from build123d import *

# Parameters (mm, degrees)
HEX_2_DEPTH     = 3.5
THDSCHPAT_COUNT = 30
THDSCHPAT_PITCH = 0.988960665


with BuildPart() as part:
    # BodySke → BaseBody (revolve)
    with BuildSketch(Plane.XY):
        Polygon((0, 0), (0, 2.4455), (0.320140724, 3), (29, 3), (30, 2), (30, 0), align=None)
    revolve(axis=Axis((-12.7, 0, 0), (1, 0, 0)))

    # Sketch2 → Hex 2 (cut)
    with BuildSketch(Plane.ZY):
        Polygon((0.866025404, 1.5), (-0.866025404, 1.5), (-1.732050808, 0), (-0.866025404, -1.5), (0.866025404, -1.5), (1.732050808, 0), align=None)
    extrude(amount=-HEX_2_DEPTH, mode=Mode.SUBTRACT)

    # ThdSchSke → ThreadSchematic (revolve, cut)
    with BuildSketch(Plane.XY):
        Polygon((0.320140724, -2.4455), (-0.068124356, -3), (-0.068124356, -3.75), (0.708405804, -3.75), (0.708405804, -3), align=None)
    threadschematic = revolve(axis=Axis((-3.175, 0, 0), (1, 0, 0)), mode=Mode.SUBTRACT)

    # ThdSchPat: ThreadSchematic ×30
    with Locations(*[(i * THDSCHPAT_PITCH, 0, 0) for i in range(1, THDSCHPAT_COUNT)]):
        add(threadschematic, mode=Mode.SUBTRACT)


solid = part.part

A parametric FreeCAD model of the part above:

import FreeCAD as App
import Part
import Sketcher
from FreeCAD import Vector
Q = App.Units.Quantity

doc = App.newDocument("Part")
params = doc.addObject("Spreadsheet::Sheet", "Params")
for row, (alias, value) in enumerate([
    ("sketch1_width", "30 mm"),
    ("sketch1_height", "2 mm"),
    ("revolution_angle", "360 deg"),
    ("pocket1_length", "3.5 mm"),
    ("sketch3_height", "0.75 mm"),
    ("groove_angle", "360 deg"),
    ("linearpattern_pitch", "0.988961 mm"),
], start=1):
    params.set(f"A{row}", alias)
    params.set(f"B{row}", "=" + value)
    params.setAlias(f"B{row}", alias)

body = doc.addObject("PartDesign::Body", "Body")

sketch1 = doc.addObject("Sketcher::SketchObject", "Sketch")
body.addObject(sketch1)
sketch1.AttachmentSupport = (doc.XY_Plane, [""])
sketch1.MapMode = "FlatFace"
sketch1.addGeometry(Part.LineSegment(Vector(0, 2.4, 0), Vector(0, 0, 0)), False)
sketch1.addGeometry(Part.LineSegment(Vector(0, 0, 0), Vector(30, 0, 0)), False)
sketch1.addGeometry(Part.LineSegment(Vector(30, 0, 0), Vector(30, 2, 0)), False)
sketch1.addGeometry(Part.LineSegment(Vector(30, 2, 0), Vector(29, 3, 0)), False)
sketch1.addGeometry(Part.LineSegment(Vector(29, 3, 0), Vector(0.3, 3, 0)), False)
sketch1.addGeometry(Part.LineSegment(Vector(0.3, 3, 0), Vector(0, 2.4, 0)), False)
sketch1.addConstraint(Sketcher.Constraint("Coincident", 0, 2, 1, 1))
sketch1.addConstraint(Sketcher.Constraint("Coincident", 1, 2, 2, 1))
sketch1.addConstraint(Sketcher.Constraint("Coincident", 2, 2, 3, 1))
sketch1.addConstraint(Sketcher.Constraint("Coincident", 3, 2, 4, 1))
sketch1.addConstraint(Sketcher.Constraint("Coincident", 4, 2, 5, 1))
sketch1.addConstraint(Sketcher.Constraint("Coincident", 5, 2, 0, 1))
sketch1.addConstraint(Sketcher.Constraint("Vertical", 0))
sketch1.addConstraint(Sketcher.Constraint("Horizontal", 1))
sketch1.addConstraint(Sketcher.Constraint("Vertical", 2))
sketch1.addConstraint(Sketcher.Constraint("Horizontal", 4))
sketch1.addConstraint(Sketcher.Constraint("Coincident", 0, 2, -1, 1))
sketch1.addConstraint(Sketcher.Constraint("DistanceX", 1, 1, 1, 2, 30.0))
sketch1.addConstraint(Sketcher.Constraint("DistanceY", 2, 1, 2, 2, 2.0))
sketch1.addConstraint(Sketcher.Constraint("Angle", 3, Q("135 deg")))
sketch1.addConstraint(Sketcher.Constraint("Angle", 5, Q("-120 deg")))
sketch1.addConstraint(Sketcher.Constraint("DistanceX", -1, 1, 3, 2, 29.0))
sketch1.addConstraint(Sketcher.Constraint("DistanceY", 0, 2, 0, 1, 2.4455))
sketch1.setExpression("Constraints[11]", "Params.sketch1_width")
sketch1.setExpression("Constraints[12]", "Params.sketch1_height")
revolution = doc.addObject("PartDesign::Revolution", "Revolution")
body.addObject(revolution)
revolution.Profile = sketch1
revolution.ReferenceAxis = (sketch1, ["H_Axis"])
revolution.setExpression("Angle", "Params.revolution_angle")

sketch2 = doc.addObject("Sketcher::SketchObject", "Sketch001")
body.addObject(sketch2)
sketch2.AttachmentSupport = (doc.YZ_Plane, [""])
sketch2.MapMode = "FlatFace"
sketch2.addGeometry(Part.LineSegment(Vector(1.5, 0.9, 0), Vector(1.5, -0.9, 0)), False)
sketch2.addGeometry(Part.LineSegment(Vector(1.5, -0.9, 0), Vector(0, -1.7, 0)), False)
sketch2.addGeometry(Part.LineSegment(Vector(0, -1.7, 0), Vector(-1.5, -0.9, 0)), False)
sketch2.addGeometry(Part.LineSegment(Vector(-1.5, -0.9, 0), Vector(-1.5, 0.9, 0)), False)
sketch2.addGeometry(Part.LineSegment(Vector(-1.5, 0.9, 0), Vector(0, 1.7, 0)), False)
sketch2.addGeometry(Part.LineSegment(Vector(0, 1.7, 0), Vector(1.5, 0.9, 0)), False)
sketch2.addConstraint(Sketcher.Constraint("Coincident", 0, 2, 1, 1))
sketch2.addConstraint(Sketcher.Constraint("Coincident", 1, 2, 2, 1))
sketch2.addConstraint(Sketcher.Constraint("Coincident", 2, 2, 3, 1))
sketch2.addConstraint(Sketcher.Constraint("Coincident", 3, 2, 4, 1))
sketch2.addConstraint(Sketcher.Constraint("Coincident", 4, 2, 5, 1))
sketch2.addConstraint(Sketcher.Constraint("Coincident", 5, 2, 0, 1))
sketch2.addConstraint(Sketcher.Constraint("Vertical", 0))
sketch2.addConstraint(Sketcher.Constraint("Vertical", 3))
sketch2.addConstraint(Sketcher.Constraint("Symmetric", 0, 2, 3, 2, -1, 1))
sketch2.addConstraint(Sketcher.Constraint("Symmetric", 1, 2, 4, 2, -1, 1))
sketch2.addConstraint(Sketcher.Constraint("PointOnObject", 1, 2, -2))
sketch2.addConstraint(Sketcher.Constraint("Parallel", 2, 5))
sketch2.addConstraint(Sketcher.Constraint("Horizontal", 0, 2, 2, 2))
sketch2.addConstraint(Sketcher.Constraint("Angle", 1, Q("-150 deg")))
sketch2.addConstraint(Sketcher.Constraint("DistanceX", 2, 2, 0, 2, 3.0))
sketch2.addConstraint(Sketcher.Constraint("DistanceY", 0, 2, 0, 1, 1.732051))
pocket1 = doc.addObject("PartDesign::Pocket", "Pocket")
body.addObject(pocket1)
pocket1.Profile = sketch2
pocket1.setExpression("Length", "Params.pocket1_length")
pocket1.Reversed = True

sketch3 = doc.addObject("Sketcher::SketchObject", "Sketch002")
body.addObject(sketch3)
sketch3.AttachmentSupport = (doc.XY_Plane, [""])
sketch3.MapMode = "FlatFace"
sketch3.addGeometry(Part.LineSegment(Vector(0.3, -2.4, 0), Vector(-0.1, -3, 0)), False)
sketch3.addGeometry(Part.LineSegment(Vector(-0.1, -3, 0), Vector(-0.1, -3.8, 0)), False)
sketch3.addGeometry(Part.LineSegment(Vector(-0.1, -3.8, 0), Vector(0.7, -3.8, 0)), False)
sketch3.addGeometry(Part.LineSegment(Vector(0.7, -3.8, 0), Vector(0.7, -3, 0)), False)
sketch3.addGeometry(Part.LineSegment(Vector(0.7, -3, 0), Vector(0.3, -2.4, 0)), False)
sketch3.addConstraint(Sketcher.Constraint("Coincident", 0, 2, 1, 1))
sketch3.addConstraint(Sketcher.Constraint("Coincident", 1, 2, 2, 1))
sketch3.addConstraint(Sketcher.Constraint("Coincident", 2, 2, 3, 1))
sketch3.addConstraint(Sketcher.Constraint("Coincident", 3, 2, 4, 1))
sketch3.addConstraint(Sketcher.Constraint("Coincident", 4, 2, 0, 1))
sketch3.addConstraint(Sketcher.Constraint("Vertical", 1))
sketch3.addConstraint(Sketcher.Constraint("Horizontal", 2))
sketch3.addConstraint(Sketcher.Constraint("Vertical", 3))
sketch3.addConstraint(Sketcher.Constraint("Horizontal", 0, 2, 3, 2))
sketch3.addConstraint(Sketcher.Constraint("Equal", 0, 4))
sketch3.addConstraint(Sketcher.Constraint("Angle", 0, Q("-125 deg")))
sketch3.addConstraint(Sketcher.Constraint("DistanceY", 0, 2, -1, 1, 3.0))
sketch3.addConstraint(Sketcher.Constraint("DistanceY", 1, 2, 1, 1, 0.75))
sketch3.addConstraint(Sketcher.Constraint("DistanceX", 2, 1, 2, 2, 0.77653))
sketch3.addConstraint(Sketcher.Constraint("DistanceX", -1, 1, 4, 2, 0.320141))
sketch3.setExpression("Constraints[12]", "Params.sketch3_height")
groove = doc.addObject("PartDesign::Groove", "Groove")
body.addObject(groove)
groove.Profile = sketch3
groove.ReferenceAxis = (sketch3, ["H_Axis"])
groove.setExpression("Angle", "Params.groove_angle")
doc.recompute()

linearpattern = doc.addObject("PartDesign::LinearPattern", "LinearPattern")
body.addObject(linearpattern)
linearpattern.Originals = [groove]
linearpattern.Direction = (doc.X_Axis, [""])
linearpattern.Mode = "offset"
linearpattern.setExpression("Offset", "Params.linearpattern_pitch")
linearpattern.Occurrences = 30
body.Tip = linearpattern

doc.recompute()
